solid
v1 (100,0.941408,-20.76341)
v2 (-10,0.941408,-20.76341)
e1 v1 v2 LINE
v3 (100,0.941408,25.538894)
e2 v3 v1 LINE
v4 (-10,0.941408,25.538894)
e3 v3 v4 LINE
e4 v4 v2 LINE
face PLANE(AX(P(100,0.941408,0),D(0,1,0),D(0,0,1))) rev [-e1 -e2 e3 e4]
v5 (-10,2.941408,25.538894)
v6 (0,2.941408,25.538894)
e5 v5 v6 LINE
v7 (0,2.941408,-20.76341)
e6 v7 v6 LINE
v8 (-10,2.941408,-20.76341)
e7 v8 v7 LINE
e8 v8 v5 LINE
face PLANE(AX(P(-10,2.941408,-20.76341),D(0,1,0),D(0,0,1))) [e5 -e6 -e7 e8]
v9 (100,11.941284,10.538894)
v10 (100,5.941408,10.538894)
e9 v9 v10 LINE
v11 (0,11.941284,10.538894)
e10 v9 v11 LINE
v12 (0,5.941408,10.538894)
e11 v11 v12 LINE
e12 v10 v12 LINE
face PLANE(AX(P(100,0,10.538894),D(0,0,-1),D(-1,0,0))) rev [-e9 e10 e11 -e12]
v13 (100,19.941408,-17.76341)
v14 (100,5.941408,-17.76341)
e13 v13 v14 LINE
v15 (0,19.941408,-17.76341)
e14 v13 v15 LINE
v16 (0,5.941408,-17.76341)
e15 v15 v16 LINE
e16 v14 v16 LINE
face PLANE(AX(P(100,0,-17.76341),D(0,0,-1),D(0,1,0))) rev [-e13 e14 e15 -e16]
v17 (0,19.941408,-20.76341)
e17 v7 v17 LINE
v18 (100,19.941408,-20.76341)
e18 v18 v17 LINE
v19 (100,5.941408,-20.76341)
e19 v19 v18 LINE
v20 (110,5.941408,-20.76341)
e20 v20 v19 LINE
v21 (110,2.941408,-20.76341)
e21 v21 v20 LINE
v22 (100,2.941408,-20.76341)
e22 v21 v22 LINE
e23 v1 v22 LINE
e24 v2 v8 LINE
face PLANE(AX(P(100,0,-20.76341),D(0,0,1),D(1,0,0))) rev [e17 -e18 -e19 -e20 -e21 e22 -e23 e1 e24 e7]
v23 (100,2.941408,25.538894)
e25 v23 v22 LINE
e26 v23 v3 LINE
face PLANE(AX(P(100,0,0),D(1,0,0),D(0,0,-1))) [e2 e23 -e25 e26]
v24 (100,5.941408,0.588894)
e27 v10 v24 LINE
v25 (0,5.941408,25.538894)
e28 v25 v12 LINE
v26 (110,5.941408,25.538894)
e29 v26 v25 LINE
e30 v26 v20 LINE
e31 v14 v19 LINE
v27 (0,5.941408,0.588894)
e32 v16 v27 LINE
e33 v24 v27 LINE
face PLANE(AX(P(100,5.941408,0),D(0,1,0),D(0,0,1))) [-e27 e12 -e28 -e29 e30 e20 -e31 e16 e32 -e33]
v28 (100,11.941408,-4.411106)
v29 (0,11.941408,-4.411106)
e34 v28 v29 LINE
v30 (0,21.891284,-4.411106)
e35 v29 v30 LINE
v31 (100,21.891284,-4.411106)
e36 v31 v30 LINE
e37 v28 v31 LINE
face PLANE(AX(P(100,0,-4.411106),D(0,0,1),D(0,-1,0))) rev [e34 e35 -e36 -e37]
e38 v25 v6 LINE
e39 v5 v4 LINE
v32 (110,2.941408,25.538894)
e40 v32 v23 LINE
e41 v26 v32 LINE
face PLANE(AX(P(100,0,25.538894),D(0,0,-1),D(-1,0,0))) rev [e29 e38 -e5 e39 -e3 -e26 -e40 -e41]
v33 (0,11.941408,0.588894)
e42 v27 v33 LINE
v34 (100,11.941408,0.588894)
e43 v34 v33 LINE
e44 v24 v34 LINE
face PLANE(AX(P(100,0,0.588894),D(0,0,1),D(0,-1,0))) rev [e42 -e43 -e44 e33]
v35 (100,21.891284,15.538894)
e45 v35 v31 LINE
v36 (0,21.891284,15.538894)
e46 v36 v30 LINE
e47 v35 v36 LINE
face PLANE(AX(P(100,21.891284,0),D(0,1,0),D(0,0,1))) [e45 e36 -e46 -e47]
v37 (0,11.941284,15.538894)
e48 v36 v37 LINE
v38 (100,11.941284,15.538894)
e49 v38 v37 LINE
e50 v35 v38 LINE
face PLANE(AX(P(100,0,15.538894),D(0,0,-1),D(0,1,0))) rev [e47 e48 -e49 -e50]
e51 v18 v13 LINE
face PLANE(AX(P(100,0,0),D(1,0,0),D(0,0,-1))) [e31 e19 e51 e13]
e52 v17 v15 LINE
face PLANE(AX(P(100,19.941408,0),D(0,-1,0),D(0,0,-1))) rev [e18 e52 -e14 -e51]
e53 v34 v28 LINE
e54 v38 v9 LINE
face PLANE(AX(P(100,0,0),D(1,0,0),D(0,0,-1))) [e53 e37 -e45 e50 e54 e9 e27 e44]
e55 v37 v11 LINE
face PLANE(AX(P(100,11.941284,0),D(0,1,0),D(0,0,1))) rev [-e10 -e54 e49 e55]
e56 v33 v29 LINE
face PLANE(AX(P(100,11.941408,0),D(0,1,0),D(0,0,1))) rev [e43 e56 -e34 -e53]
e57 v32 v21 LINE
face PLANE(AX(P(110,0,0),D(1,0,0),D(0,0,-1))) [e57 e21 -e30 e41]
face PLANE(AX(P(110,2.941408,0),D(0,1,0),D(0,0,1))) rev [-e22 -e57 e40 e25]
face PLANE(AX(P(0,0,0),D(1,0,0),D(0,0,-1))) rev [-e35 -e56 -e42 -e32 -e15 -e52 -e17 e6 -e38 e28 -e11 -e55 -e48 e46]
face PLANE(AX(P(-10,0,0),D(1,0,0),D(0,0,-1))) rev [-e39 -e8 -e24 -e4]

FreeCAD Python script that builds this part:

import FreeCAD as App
import Part
import Sketcher

doc = App.newDocument("Part")
body = doc.addObject("PartDesign::Body", "Body")

# Sketch on YZ plane
sketch1 = doc.addObject("Sketcher::SketchObject", "Sketch")
body.addObject(sketch1)
sketch1.AttachmentSupport = (doc.YZ_Plane, [""])
sketch1.MapMode = "FlatFace"
sketch1.addGeometry(Part.LineSegment(App.Vector(11.9, 0.6, 0), App.Vector(11.9, -4.4, 0)), False)
sketch1.addGeometry(Part.LineSegment(App.Vector(11.9, -4.4, 0), App.Vector(21.9, -4.4, 0)), False)
sketch1.addGeometry(Part.LineSegment(App.Vector(21.9, -4.4, 0), App.Vector(21.9, 15.5, 0)), False)
sketch1.addGeometry(Part.LineSegment(App.Vector(21.9, 15.5, 0), App.Vector(11.9, 15.5, 0)), False)
sketch1.addGeometry(Part.LineSegment(App.Vector(11.9, 15.5, 0), App.Vector(11.9, 10.5, 0)), False)
sketch1.addGeometry(Part.LineSegment(App.Vector(11.9, 10.5, 0), App.Vector(5.9, 10.5, 0)), False)
sketch1.addGeometry(Part.LineSegment(App.Vector(5.9, 10.5, 0), App.Vector(5.9, 25.5, 0)), False)
sketch1.addGeometry(Part.LineSegment(App.Vector(5.9, 25.5, 0), App.Vector(0.9, 25.5, 0)), False)
sketch1.addGeometry(Part.LineSegment(App.Vector(0.9, 25.5, 0), App.Vector(0.9, -20.8, 0)), False)
sketch1.addGeometry(Part.LineSegment(App.Vector(0.9, -20.8, 0), App.Vector(19.9, -20.8, 0)), False)
sketch1.addGeometry(Part.LineSegment(App.Vector(19.9, -20.8, 0), App.Vector(19.9, -17.8, 0)), False)
sketch1.addGeometry(Part.LineSegment(App.Vector(19.9, -17.8, 0), App.Vector(5.9, -17.8, 0)), False)
sketch1.addGeometry(Part.LineSegment(App.Vector(5.9, -17.8, 0), App.Vector(5.9, 0.6, 0)), False)
sketch1.addGeometry(Part.LineSegment(App.Vector(5.9, 0.6, 0), App.Vector(11.9, 0.6, 0)), False)
sketch1.addConstraint(Sketcher.Constraint("Coincident", 0, 2, 1, 1))
sketch1.addConstraint(Sketcher.Constraint("Coincident", 1, 2, 2, 1))
sketch1.addConstraint(Sketcher.Constraint("Coincident", 2, 2, 3, 1))
sketch1.addConstraint(Sketcher.Constraint("Coincident", 3, 2, 4, 1))
sketch1.addConstraint(Sketcher.Constraint("Coincident", 4, 2, 5, 1))
sketch1.addConstraint(Sketcher.Constraint("Coincident", 5, 2, 6, 1))
sketch1.addConstraint(Sketcher.Constraint("Coincident", 6, 2, 7, 1))
sketch1.addConstraint(Sketcher.Constraint("Coincident", 7, 2, 8, 1))
sketch1.addConstraint(Sketcher.Constraint("Coincident", 8, 2, 9, 1))
sketch1.addConstraint(Sketcher.Constraint("Coincident", 9, 2, 10, 1))
sketch1.addConstraint(Sketcher.Constraint("Coincident", 10, 2, 11, 1))
sketch1.addConstraint(Sketcher.Constraint("Coincident", 11, 2, 12, 1))
sketch1.addConstraint(Sketcher.Constraint("Coincident", 12, 2, 13, 1))
sketch1.addConstraint(Sketcher.Constraint("Coincident", 13, 2, 0, 1))
sketch1.addConstraint(Sketcher.Constraint("Vertical", 0))
sketch1.addConstraint(Sketcher.Constraint("Horizontal", 1))
sketch1.addConstraint(Sketcher.Constraint("Vertical", 2))
sketch1.addConstraint(Sketcher.Constraint("Horizontal", 3))
sketch1.addConstraint(Sketcher.Constraint("Vertical", 4))
sketch1.addConstraint(Sketcher.Constraint("Horizontal", 5))
sketch1.addConstraint(Sketcher.Constraint("Vertical", 6))
sketch1.addConstraint(Sketcher.Constraint("Horizontal", 7))
sketch1.addConstraint(Sketcher.Constraint("Vertical", 8))
sketch1.addConstraint(Sketcher.Constraint("Horizontal", 9))
sketch1.addConstraint(Sketcher.Constraint("Vertical", 10))
sketch1.addConstraint(Sketcher.Constraint("Horizontal", 11))
sketch1.addConstraint(Sketcher.Constraint("Vertical", 12))
sketch1.addConstraint(Sketcher.Constraint("Horizontal", 13))
sketch1.addConstraint(Sketcher.Constraint("Vertical", 6, 2, 11, 2))
sketch1.addConstraint(Sketcher.Constraint("Equal", 7, 0))
sketch1.addConstraint(Sketcher.Constraint("Equal", 0, 4))
sketch1.addConstraint(Sketcher.Constraint("DistanceX", 7, 2, 7, 1, 5.0))
sketch1.addConstraint(Sketcher.Constraint("DistanceX", 9, 1, 9, 2, 19.0))
sketch1.addConstraint(Sketcher.Constraint("DistanceX", 13, 1, 13, 2, 6.0))
sketch1.addConstraint(Sketcher.Constraint("DistanceY", 6, 1, 6, 2, 15.0))
sketch1.addConstraint(Sketcher.Constraint("DistanceY", 10, 1, 10, 2, 3.0))
sketch1.addConstraint(Sketcher.Constraint("DistanceX", 3, 2, 3, 1, 9.95))
sketch1.addConstraint(Sketcher.Constraint("DistanceY", 2, 1, 2, 2, 19.95))
sketch1.addConstraint(Sketcher.Constraint("DistanceX", 1, 1, 1, 2, 9.949876))
sketch1.addConstraint(Sketcher.Constraint("DistanceY", 8, 2, 8, 1, 46.302304))
sketch1.addConstraint(Sketcher.Constraint("DistanceX", -1, 1, 0, 2, 11.941408))
sketch1.addConstraint(Sketcher.Constraint("DistanceY", 8, 2, -1, 1, 20.76341))
pad1 = doc.addObject("PartDesign::Pad", "Pad")
body.addObject(pad1)
pad1.Profile = sketch1
pad1.Length = 100

# Sketch on YZ plane
sketch2 = doc.addObject("Sketcher::SketchObject", "Sketch001")
body.addObject(sketch2)
sketch2.AttachmentSupport = (doc.YZ_Plane, [""])
sketch2.MapMode = "FlatFace"
sketch2.addGeometry(Part.LineSegment(App.Vector(2.9, -20.8, 0), App.Vector(0.9, -20.8, 0)), False)
sketch2.addGeometry(Part.LineSegment(App.Vector(0.9, -20.8, 0), App.Vector(0.9, 25.5, 0)), False)
sketch2.addGeometry(Part.LineSegment(App.Vector(0.9, 25.5, 0), App.Vector(2.9, 25.5, 0)), False)
sketch2.addGeometry(Part.LineSegment(App.Vector(2.9, 25.5, 0), App.Vector(2.9, -20.8, 0)), False)
sketch2.addConstraint(Sketcher.Constraint("Coincident", 0, 2, 1, 1))
sketch2.addConstraint(Sketcher.Constraint("Coincident", 1, 2, 2, 1))
sketch2.addConstraint(Sketcher.Constraint("Coincident", 2, 2, 3, 1))
sketch2.addConstraint(Sketcher.Constraint("Coincident", 3, 2, 0, 1))
sketch2.addConstraint(Sketcher.Constraint("Horizontal", 0))
sketch2.addConstraint(Sketcher.Constraint("Vertical", 1))
sketch2.addConstraint(Sketcher.Constraint("Horizontal", 2))
sketch2.addConstraint(Sketcher.Constraint("Vertical", 3))
sketch2.addConstraint(Sketcher.Constraint("DistanceX", 0, 2, 0, 1, 2.0))
sketch2.addConstraint(Sketcher.Constraint("DistanceY", 1, 1, 1, 2, 46.302304))
sketch2.addConstraint(Sketcher.Constraint("DistanceX", -1, 1, 0, 2, 0.941408))
sketch2.addConstraint(Sketcher.Constraint("DistanceY", 0, 2, -1, 1, 20.76341))
pad2 = doc.addObject("PartDesign::Pad", "Pad001")
body.addObject(pad2)
pad2.Profile = sketch2
pad2.Length = 10
pad2.Reversed = True

# Sketch on YZ plane
sketch3 = doc.addObject("Sketcher::SketchObject", "Sketch002")
body.addObject(sketch3)
sketch3.AttachmentSupport = (doc.YZ_Plane, [""])
sketch3.MapMode = "FlatFace"
sketch3.AttachmentOffset = App.Placement(App.Vector(0, 0, 100), App.Rotation())
sketch3.addGeometry(Part.LineSegment(App.Vector(5.9, 25.5, 0), App.Vector(2.9, 25.5, 0)), False)
sketch3.addGeometry(Part.LineSegment(App.Vector(2.9, 25.5, 0), App.Vector(2.9, -20.8, 0)), False)
sketch3.addGeometry(Part.LineSegment(App.Vector(2.9, -20.8, 0), App.Vector(5.9, -20.8, 0)), False)
sketch3.addGeometry(Part.LineSegment(App.Vector(5.9, -20.8, 0), App.Vector(5.9, 25.5, 0)), False)
sketch3.addConstraint(Sketcher.Constraint("Coincident", 0, 2, 1, 1))
sketch3.addConstraint(Sketcher.Constraint("Coincident", 1, 2, 2, 1))
sketch3.addConstraint(Sketcher.Constraint("Coincident", 2, 2, 3, 1))
sketch3.addConstraint(Sketcher.Constraint("Coincident", 3, 2, 0, 1))
sketch3.addConstraint(Sketcher.Constraint("Horizontal", 0))
sketch3.addConstraint(Sketcher.Constraint("Vertical", 1))
sketch3.addConstraint(Sketcher.Constraint("Horizontal", 2))
sketch3.addConstraint(Sketcher.Constraint("Vertical", 3))
sketch3.addConstraint(Sketcher.Constraint("DistanceX", 0, 2, 0, 1, 3.0))
sketch3.addConstraint(Sketcher.Constraint("DistanceY", 1, 2, 1, 1, 46.302304))
sketch3.addConstraint(Sketcher.Constraint("DistanceX", -1, 1, 0, 2, 2.941408))
sketch3.addConstraint(Sketcher.Constraint("DistanceY", 1, 2, -1, 1, 20.76341))
pad3 = doc.addObject("PartDesign::Pad", "Pad002")
body.addObject(pad3)
pad3.Profile = sketch3
pad3.Length = 10

doc.recompute()
